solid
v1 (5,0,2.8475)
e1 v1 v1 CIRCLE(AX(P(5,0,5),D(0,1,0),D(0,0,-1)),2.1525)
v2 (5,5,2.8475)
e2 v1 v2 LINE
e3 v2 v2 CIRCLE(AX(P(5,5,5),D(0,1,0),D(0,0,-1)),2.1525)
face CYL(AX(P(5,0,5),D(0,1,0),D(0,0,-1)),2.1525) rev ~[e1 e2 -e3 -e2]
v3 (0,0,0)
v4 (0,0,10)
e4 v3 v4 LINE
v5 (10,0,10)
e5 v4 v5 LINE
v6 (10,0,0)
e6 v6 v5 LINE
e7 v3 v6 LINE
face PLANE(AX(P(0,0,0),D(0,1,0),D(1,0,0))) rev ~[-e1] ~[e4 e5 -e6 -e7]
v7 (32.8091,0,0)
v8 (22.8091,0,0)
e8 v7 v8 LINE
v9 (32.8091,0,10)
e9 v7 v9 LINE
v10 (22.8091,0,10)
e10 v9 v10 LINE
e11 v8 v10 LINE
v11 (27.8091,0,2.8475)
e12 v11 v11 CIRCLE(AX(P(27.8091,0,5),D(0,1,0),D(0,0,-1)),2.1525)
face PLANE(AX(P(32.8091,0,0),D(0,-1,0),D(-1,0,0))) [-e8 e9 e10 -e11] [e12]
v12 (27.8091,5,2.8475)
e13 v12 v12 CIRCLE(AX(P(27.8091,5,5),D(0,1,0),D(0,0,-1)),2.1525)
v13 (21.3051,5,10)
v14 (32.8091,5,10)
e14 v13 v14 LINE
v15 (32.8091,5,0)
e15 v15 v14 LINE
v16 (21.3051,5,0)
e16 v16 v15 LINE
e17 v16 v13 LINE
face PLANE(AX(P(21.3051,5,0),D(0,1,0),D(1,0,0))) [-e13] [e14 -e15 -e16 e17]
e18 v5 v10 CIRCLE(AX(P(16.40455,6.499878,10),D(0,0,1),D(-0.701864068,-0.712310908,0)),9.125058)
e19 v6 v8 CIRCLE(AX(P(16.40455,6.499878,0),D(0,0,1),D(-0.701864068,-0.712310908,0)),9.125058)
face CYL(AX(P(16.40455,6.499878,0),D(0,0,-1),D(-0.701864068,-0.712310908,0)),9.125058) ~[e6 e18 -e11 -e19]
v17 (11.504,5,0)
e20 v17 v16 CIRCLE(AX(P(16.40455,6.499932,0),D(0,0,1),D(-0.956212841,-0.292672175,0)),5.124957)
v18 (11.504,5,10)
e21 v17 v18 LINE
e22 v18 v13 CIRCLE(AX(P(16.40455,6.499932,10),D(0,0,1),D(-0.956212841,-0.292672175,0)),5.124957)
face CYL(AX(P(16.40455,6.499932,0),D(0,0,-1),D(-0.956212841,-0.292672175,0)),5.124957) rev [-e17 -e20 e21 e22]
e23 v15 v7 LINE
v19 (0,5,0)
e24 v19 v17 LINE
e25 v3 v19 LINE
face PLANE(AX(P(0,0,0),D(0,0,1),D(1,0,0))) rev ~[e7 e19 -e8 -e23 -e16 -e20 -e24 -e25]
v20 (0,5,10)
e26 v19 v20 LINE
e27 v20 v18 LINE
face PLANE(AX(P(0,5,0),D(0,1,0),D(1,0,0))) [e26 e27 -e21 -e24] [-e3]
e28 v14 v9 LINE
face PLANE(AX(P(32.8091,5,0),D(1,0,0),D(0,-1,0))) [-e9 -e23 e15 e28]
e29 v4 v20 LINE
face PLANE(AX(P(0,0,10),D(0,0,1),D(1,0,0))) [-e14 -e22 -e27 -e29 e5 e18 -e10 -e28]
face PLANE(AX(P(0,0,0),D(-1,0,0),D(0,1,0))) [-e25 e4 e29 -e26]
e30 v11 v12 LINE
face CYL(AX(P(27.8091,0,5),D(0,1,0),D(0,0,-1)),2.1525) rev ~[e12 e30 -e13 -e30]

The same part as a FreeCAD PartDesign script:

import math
import FreeCAD as App
import Part
import Sketcher

V = App.Vector
Q = App.Units.Quantity

doc = App.newDocument("Part")
params = doc.addObject("Spreadsheet::Sheet", "Params")
for row, (alias, value) in enumerate([
    ("sketch1_width", "10 mm"),
    ("sketch1_height", "5 mm"),
    ("pad1_length", "10 mm"),
    ("hole_diameter", "4.305 mm"),
], start=1):
    params.set(f"A{row}", alias)
    params.set(f"B{row}", "=" + value)
    params.setAlias(f"B{row}", alias)

body = doc.addObject("PartDesign::Body", "Body")

sketch1 = body.newObject("Sketcher::SketchObject", "Sketch")
sketch1.AttachmentSupport = (doc.getObject("XY_Plane"), [""])
sketch1.MapMode = "FlatFace"
sketch1.addGeometry(Part.LineSegment(V(0, 5, 0), V(0, 0, 0)), False)
sketch1.addGeometry(Part.LineSegment(V(0, 0, 0), V(10, 0, 0)), False)
sketch1.addGeometry(Part.ArcOfCircle(Part.Circle(V(16, 6, 0), V(0, 0, 1), 9), math.radians(-135), math.radians(-45)), False)
sketch1.addGeometry(Part.LineSegment(V(23, 0, 0), V(33, 0, 0)), False)
sketch1.addGeometry(Part.LineSegment(V(33, 0, 0), V(33, 5, 0)), False)
sketch1.addGeometry(Part.LineSegment(V(33, 5, 0), V(21, 5, 0)), False)
sketch1.addGeometry(Part.ArcOfCircle(Part.Circle(V(16, 6, 0), V(0, 0, 1), 5), math.radians(-163), math.radians(-17)), False)
sketch1.addGeometry(Part.LineSegment(V(12, 5, 0), V(0, 5, 0)), False)
sketch1.addConstraint(Sketcher.Constraint("Coincident", 0, 2, 1, 1))
sketch1.addConstraint(Sketcher.Constraint("Coincident", 1, 2, 2, 1))
sketch1.addConstraint(Sketcher.Constraint("Coincident", 2, 2, 3, 1))
sketch1.addConstraint(Sketcher.Constraint("Coincident", 3, 2, 4, 1))
sketch1.addConstraint(Sketcher.Constraint("Coincident", 4, 2, 5, 1))
sketch1.addConstraint(Sketcher.Constraint("Coincident", 5, 2, 6, 2))
sketch1.addConstraint(Sketcher.Constraint("Coincident", 6, 1, 7, 1))
sketch1.addConstraint(Sketcher.Constraint("Coincident", 7, 2, 0, 1))
sketch1.addConstraint(Sketcher.Constraint("Vertical", 0))
sketch1.addConstraint(Sketcher.Constraint("Horizontal", 1))
sketch1.addConstraint(Sketcher.Constraint("Horizontal", 3))
sketch1.addConstraint(Sketcher.Constraint("Vertical", 4))
sketch1.addConstraint(Sketcher.Constraint("Horizontal", 5))
sketch1.addConstraint(Sketcher.Constraint("Horizontal", 7))
sketch1.addConstraint(Sketcher.Constraint("Coincident", 0, 2, -1, 1))
sketch1.addConstraint(Sketcher.Constraint("Coincident", 6, 3, 2, 3))
sketch1.addConstraint(Sketcher.Constraint("PointOnObject", 2, 2, -1))
sketch1.addConstraint(Sketcher.Constraint("Horizontal", 5, 2, 6, 1))
sketch1.addConstraint(Sketcher.Constraint("Equal", 1, 3))
sketch1.addConstraint(Sketcher.Constraint("DistanceX", 1, 1, 1, 2, Q("10 mm")))
sketch1.addConstraint(Sketcher.Constraint("DistanceY", 0, 2, 0, 1, Q("5 mm")))
sketch1.addConstraint(Sketcher.Constraint("Radius", 6, Q("5.125 mm")))
sketch1.addConstraint(Sketcher.Constraint("DistanceY", 4, 2, 2, 3, Q("1.5 mm")))
sketch1.addConstraint(Sketcher.Constraint("DistanceX", 5, 2, 5, 1, Q("11.504 mm")))
sketch1.setExpression("Constraints[19]", "Params.sketch1_width")
sketch1.setExpression("Constraints[20]", "Params.sketch1_height")
pad1 = body.newObject("PartDesign::Pad", "Pad")
pad1.Profile = sketch1
pad1.setExpression("Length", "Params.pad1_length")

sketch2 = body.newObject("Sketcher::SketchObject", "Sketch001")
sketch2.AttachmentSupport = (doc.getObject("XZ_Plane"), [""])
sketch2.MapMode = "FlatFace"
sketch2.addGeometry(Part.Circle(V(5, 5, 0), V(0, 0, 1), 2.2), False)
sketch2.addGeometry(Part.Circle(V(27.8, 5, 0), V(0, 0, 1), 2.2), False)
sketch2.addConstraint(Sketcher.Constraint("Equal", 0, 1))
sketch2.addConstraint(Sketcher.Constraint("Horizontal", 0, 3, 1, 3))
sketch2.addConstraint(Sketcher.Constraint("Diameter", 0, Q("4.305 mm")))
sketch2.addConstraint(Sketcher.Constraint("DistanceX", -1, 1, 0, 3, Q("5 mm")))
sketch2.addConstraint(Sketcher.Constraint("DistanceY", -1, 1, 0, 3, Q("5 mm")))
sketch2.addConstraint(Sketcher.Constraint("DistanceX", -1, 1, 1, 3, Q("27.809 mm")))
doc.recompute()
hole = body.newObject("PartDesign::Hole", "Hole")
hole.Profile = sketch2
hole.ThreadType = "None"
hole.setExpression("Diameter", "Params.hole_diameter")
hole.DepthType = "ThroughAll"

doc.recompute()
